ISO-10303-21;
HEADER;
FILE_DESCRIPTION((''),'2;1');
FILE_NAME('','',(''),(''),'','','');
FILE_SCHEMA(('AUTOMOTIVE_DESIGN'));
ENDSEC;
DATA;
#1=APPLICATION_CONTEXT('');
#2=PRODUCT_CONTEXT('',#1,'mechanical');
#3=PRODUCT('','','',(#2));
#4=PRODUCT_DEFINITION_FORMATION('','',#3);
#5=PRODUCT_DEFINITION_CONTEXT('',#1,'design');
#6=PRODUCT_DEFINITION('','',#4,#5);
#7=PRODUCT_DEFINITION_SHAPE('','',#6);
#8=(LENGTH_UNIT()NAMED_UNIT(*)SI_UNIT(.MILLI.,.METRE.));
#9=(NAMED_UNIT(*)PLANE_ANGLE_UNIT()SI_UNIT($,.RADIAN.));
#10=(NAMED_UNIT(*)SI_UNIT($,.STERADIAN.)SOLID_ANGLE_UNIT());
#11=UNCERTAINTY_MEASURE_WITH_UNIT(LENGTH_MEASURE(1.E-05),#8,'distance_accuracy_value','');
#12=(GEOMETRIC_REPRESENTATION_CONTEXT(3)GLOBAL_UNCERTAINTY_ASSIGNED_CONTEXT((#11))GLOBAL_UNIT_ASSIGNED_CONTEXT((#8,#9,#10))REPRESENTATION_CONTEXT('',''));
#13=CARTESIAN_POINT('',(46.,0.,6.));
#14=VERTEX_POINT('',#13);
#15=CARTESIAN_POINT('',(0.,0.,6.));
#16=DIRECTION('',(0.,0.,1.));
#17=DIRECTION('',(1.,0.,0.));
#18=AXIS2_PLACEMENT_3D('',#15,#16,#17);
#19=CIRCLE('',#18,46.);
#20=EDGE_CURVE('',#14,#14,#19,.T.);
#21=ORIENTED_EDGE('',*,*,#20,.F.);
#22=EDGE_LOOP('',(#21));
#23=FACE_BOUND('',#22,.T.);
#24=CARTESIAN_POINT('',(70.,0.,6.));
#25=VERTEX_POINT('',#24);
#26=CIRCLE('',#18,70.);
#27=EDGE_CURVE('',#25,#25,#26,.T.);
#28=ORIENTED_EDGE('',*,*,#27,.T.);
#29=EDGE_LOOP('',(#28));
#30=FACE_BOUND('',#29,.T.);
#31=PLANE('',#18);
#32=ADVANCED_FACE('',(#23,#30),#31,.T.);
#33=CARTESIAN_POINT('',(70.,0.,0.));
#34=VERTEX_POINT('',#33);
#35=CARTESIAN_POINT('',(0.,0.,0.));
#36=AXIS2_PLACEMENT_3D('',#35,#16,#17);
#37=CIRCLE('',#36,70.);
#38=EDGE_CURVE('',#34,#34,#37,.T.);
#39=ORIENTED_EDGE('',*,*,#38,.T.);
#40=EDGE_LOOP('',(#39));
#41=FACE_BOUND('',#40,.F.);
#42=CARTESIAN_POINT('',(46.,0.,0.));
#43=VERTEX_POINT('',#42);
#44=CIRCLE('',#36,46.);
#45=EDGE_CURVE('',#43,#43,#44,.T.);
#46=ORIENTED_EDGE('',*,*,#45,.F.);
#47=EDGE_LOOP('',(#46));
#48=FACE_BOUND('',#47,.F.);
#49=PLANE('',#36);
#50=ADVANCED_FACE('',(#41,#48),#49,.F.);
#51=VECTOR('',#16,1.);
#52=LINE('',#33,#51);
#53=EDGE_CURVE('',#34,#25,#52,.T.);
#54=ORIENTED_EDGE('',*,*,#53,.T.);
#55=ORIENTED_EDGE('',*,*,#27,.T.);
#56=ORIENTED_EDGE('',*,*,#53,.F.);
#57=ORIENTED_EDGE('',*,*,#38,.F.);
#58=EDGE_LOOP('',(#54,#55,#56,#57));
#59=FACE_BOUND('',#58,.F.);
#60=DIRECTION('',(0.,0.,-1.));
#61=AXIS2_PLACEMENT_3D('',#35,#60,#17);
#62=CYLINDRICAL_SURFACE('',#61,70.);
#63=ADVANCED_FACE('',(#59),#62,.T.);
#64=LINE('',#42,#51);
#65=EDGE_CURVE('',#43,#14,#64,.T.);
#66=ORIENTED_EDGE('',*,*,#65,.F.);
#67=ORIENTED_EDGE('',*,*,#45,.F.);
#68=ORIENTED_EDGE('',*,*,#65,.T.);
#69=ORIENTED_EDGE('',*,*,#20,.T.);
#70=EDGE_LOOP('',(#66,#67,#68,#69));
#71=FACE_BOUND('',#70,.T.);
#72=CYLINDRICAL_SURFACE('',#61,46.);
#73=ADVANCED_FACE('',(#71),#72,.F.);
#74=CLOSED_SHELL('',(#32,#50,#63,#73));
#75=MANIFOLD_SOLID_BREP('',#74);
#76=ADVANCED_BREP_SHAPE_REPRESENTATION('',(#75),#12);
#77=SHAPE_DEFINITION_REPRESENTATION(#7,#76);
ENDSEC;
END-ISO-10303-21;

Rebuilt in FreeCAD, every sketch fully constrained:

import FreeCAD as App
import Part
import Sketcher
Q = App.Units.Quantity

doc = App.newDocument("Part")
body = doc.addObject("PartDesign::Body", "Body")

# Sketch on XY plane
sketch1 = doc.addObject("Sketcher::SketchObject", "Sketch")
body.addObject(sketch1)
sketch1.AttachmentSupport = (doc.XY_Plane, [""])
sketch1.MapMode = "FlatFace"
sketch1.addGeometry([
    Part.Circle(App.Vector(0, 0, 0), App.Vector(0, 0, 1), 70),
    Part.Circle(App.Vector(0, 0, 0), App.Vector(0, 0, 1), 46),
], False)
sketch1.addConstraint([
    Sketcher.Constraint("Coincident", 0, 3, -1, 1),
    Sketcher.Constraint("Coincident", 1, 3, -1, 1),
    Sketcher.Constraint("Diameter", 0, Q("140 mm")),
    Sketcher.Constraint("Diameter", 1, Q("92 mm")),
])
pad1 = doc.addObject("PartDesign::Pad", "Pad")
body.addObject(pad1)
pad1.Profile = sketch1
pad1.Length = 6

doc.recompute()
